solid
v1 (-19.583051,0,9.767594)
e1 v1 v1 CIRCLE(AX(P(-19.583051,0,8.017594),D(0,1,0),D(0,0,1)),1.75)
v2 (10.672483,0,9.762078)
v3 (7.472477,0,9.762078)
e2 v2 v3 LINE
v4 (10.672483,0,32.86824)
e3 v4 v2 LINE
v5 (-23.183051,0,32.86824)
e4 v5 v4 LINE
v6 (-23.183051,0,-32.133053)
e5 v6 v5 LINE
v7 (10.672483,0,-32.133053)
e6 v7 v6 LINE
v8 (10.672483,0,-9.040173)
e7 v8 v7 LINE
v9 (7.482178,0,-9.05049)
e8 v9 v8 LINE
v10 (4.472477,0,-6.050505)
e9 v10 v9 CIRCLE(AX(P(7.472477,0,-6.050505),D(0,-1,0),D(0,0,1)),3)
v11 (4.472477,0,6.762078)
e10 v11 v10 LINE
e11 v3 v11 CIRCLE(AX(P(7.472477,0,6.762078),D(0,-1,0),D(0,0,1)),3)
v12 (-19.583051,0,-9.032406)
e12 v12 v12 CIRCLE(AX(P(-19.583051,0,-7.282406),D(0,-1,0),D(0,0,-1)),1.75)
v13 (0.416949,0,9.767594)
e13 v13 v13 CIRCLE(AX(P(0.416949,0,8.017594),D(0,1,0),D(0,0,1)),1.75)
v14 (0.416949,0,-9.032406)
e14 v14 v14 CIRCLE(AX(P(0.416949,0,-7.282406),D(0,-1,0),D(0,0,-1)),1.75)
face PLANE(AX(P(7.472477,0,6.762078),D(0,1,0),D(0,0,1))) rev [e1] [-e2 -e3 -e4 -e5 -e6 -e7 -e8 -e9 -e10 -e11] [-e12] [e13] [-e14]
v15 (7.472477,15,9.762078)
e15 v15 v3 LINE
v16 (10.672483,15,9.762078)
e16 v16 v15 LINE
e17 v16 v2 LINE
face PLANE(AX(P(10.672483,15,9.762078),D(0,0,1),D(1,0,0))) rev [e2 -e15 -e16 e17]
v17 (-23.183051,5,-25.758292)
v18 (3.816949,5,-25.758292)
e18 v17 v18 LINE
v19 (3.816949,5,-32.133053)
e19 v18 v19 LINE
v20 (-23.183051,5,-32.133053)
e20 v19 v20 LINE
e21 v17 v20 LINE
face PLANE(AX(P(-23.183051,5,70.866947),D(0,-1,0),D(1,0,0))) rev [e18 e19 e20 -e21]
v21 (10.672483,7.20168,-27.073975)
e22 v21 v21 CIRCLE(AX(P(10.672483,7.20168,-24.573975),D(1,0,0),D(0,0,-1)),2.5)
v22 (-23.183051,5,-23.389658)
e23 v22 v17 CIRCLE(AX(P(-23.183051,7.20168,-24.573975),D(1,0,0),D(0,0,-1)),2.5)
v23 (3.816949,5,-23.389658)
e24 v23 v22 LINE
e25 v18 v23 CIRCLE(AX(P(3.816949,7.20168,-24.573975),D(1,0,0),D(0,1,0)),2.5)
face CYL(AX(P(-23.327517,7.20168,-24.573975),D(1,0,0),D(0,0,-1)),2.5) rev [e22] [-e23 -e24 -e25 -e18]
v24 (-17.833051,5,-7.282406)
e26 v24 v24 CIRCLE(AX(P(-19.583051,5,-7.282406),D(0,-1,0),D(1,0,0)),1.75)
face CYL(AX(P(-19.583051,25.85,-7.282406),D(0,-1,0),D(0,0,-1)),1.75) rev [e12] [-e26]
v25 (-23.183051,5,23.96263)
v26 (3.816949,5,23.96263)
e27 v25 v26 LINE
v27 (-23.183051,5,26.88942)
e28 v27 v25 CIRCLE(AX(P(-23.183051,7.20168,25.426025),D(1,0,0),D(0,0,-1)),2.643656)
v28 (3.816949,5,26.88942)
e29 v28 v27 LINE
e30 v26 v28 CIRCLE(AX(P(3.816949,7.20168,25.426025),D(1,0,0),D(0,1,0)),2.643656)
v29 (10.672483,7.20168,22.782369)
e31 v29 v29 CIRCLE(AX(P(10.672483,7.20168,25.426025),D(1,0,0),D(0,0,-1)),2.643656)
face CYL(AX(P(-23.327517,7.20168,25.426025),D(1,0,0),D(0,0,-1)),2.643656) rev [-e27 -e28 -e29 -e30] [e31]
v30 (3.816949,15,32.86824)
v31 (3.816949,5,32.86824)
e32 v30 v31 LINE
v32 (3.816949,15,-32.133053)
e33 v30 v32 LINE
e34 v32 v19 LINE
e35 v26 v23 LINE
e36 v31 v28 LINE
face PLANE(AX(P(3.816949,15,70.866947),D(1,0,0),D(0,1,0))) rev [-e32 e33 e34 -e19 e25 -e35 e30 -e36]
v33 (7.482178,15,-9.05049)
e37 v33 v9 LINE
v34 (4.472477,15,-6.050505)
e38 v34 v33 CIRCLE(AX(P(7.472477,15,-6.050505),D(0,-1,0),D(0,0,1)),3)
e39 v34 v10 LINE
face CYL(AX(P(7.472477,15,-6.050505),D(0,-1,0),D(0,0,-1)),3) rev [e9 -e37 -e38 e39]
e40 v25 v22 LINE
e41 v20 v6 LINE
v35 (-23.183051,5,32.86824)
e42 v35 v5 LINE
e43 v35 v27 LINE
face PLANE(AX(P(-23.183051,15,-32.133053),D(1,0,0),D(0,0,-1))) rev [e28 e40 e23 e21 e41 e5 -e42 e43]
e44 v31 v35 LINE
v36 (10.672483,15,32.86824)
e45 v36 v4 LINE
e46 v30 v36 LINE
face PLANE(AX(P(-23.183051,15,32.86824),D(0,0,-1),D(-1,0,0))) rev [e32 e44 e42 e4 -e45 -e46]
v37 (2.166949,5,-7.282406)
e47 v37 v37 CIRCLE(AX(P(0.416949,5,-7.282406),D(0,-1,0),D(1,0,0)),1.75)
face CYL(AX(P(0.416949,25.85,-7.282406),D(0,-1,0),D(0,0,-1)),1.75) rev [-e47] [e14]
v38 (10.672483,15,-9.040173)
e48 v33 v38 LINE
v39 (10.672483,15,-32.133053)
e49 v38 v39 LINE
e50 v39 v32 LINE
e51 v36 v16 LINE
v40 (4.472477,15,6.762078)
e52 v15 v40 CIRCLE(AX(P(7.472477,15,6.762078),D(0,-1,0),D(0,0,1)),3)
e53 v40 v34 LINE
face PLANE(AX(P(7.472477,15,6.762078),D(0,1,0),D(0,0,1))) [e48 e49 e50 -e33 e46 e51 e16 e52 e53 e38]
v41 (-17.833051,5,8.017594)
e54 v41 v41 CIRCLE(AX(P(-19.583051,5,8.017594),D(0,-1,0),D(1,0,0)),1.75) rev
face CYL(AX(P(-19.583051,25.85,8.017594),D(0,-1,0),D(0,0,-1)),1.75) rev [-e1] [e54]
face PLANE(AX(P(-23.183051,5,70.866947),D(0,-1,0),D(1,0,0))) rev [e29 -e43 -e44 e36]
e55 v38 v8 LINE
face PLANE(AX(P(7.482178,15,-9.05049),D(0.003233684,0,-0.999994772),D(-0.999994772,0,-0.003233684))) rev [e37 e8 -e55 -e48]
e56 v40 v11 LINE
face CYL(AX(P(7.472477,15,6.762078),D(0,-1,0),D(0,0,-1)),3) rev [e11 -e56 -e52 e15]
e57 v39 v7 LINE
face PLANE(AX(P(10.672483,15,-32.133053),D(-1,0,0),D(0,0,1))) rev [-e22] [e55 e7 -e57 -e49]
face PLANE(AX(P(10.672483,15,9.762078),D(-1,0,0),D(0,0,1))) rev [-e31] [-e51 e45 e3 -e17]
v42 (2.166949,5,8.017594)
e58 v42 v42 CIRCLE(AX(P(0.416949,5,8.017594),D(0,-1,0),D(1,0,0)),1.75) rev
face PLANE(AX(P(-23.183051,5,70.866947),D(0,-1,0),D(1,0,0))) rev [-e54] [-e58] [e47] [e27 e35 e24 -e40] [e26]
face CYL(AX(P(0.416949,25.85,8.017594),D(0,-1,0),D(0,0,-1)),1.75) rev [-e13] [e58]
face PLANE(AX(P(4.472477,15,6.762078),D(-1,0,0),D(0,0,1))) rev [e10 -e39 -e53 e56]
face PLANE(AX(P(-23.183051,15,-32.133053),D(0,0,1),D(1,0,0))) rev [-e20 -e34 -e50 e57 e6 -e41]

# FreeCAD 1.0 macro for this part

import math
import FreeCAD as App
import Part
import Sketcher
Q = App.Units.Quantity


def add_polygon(sketch, points):
    """Adds a closed chain of lines whose ends are joined by coincident constraints."""
    first, n = sketch.GeometryCount, len(points)
    for a, b in zip(points, points[1:] + points[:1]):
        sketch.addGeometry(Part.LineSegment(App.Vector(*a, 0), App.Vector(*b, 0)), False)
    for i in range(n):
        sketch.addConstraint(Sketcher.Constraint("Coincident", first + i, 2, first + (i + 1) % n, 1))

doc = App.newDocument("Part")
body = doc.addObject("PartDesign::Body", "Body")

sketch1 = doc.addObject("Sketcher::SketchObject", "Sketch")
body.addObject(sketch1)
sketch1.AttachmentSupport = (doc.XZ_Plane, [""])
sketch1.MapMode = "FlatFace"
sketch1.addGeometry([
    Part.LineSegment(App.Vector(10.7, 9.8, 0), App.Vector(7.5, 9.8, 0)),
    Part.ArcOfCircle(Part.Circle(App.Vector(7.5, 6.8, 0), App.Vector(0, 0, 1), 3), math.radians(90), math.radians(180)),
    Part.LineSegment(App.Vector(4.5, 6.8, 0), App.Vector(4.5, -6.1, 0)),
    Part.ArcOfCircle(Part.Circle(App.Vector(7.5, -6.1, 0), App.Vector(0, 0, 1), 3), math.radians(180), math.radians(270)),
    Part.LineSegment(App.Vector(7.5, -9.1, 0), App.Vector(10.7, -9, 0)),
    Part.LineSegment(App.Vector(10.7, -9, 0), App.Vector(10.7, -32.1, 0)),
    Part.LineSegment(App.Vector(10.7, -32.1, 0), App.Vector(-23.2, -32.1, 0)),
    Part.LineSegment(App.Vector(-23.2, -32.1, 0), App.Vector(-23.2, 32.9, 0)),
    Part.LineSegment(App.Vector(-23.2, 32.9, 0), App.Vector(10.7, 32.9, 0)),
    Part.LineSegment(App.Vector(10.7, 32.9, 0), App.Vector(10.7, 9.8, 0)),
], False)
sketch1.addConstraint([
    Sketcher.Constraint("Tangent", 0, 2, 1, 1),
    Sketcher.Constraint("Tangent", 1, 2, 2, 1),
    Sketcher.Constraint("Tangent", 2, 2, 3, 1),
    Sketcher.Constraint("Tangent", 3, 2, 4, 1),
    Sketcher.Constraint("Coincident", 4, 2, 5, 1),
    Sketcher.Constraint("Coincident", 5, 2, 6, 1),
    Sketcher.Constraint("Coincident", 6, 2, 7, 1),
    Sketcher.Constraint("Coincident", 7, 2, 8, 1),
    Sketcher.Constraint("Coincident", 8, 2, 9, 1),
    Sketcher.Constraint("Coincident", 9, 2, 0, 1),
    Sketcher.Constraint("Horizontal", 0),
    Sketcher.Constraint("Vertical", 2),
    Sketcher.Constraint("Vertical", 5),
    Sketcher.Constraint("Horizontal", 6),
    Sketcher.Constraint("Vertical", 7),
    Sketcher.Constraint("Horizontal", 8),
    Sketcher.Constraint("Vertical", 9),
    Sketcher.Constraint("Equal", 1, 3),
    Sketcher.Constraint("Vertical", 5, 2, 8, 2),
    Sketcher.Constraint("Radius", 1, Q("3 mm")),
    Sketcher.Constraint("DistanceY", 5, 2, 5, 1, Q("23.09288 mm")),
    Sketcher.Constraint("DistanceX", 3, 3, 3, 2, Q("0.009701 mm")),
    Sketcher.Constraint("Distance", 4, Q("3.190321 mm")),
    Sketcher.Constraint("DistanceX", 6, 2, 6, 1, Q("33.855533 mm")),
    Sketcher.Constraint("DistanceY", 2, 2, 2, 1, Q("12.812583 mm")),
    Sketcher.Constraint("DistanceY", 7, 1, 7, 2, Q("65.001293 mm")),
    Sketcher.Constraint("DistanceX", -1, 1, 3, 2, Q("7.482178 mm")),
    Sketcher.Constraint("DistanceY", 3, 2, -1, 1, Q("9.05049 mm")),
])
pad1 = doc.addObject("PartDesign::Pad", "Pad")
body.addObject(pad1)
pad1.Profile = sketch1
pad1.Length = 15
pad1.Reversed = True

sketch2 = doc.addObject("Sketcher::SketchObject", "Sketch001")
body.addObject(sketch2)
sketch2.AttachmentSupport = (doc.XY_Plane, [""])
sketch2.MapMode = "FlatFace"
sketch2.AttachmentOffset = App.Placement(App.Vector(0, 0, -32.133053), App.Rotation())
add_polygon(sketch2, [(4, 15), (4, 5), (-23, 5), (-23, 15)])
sketch2.addConstraint([
    Sketcher.Constraint("Vertical", 0),
    Sketcher.Constraint("Horizontal", 1),
    Sketcher.Constraint("Vertical", 2),
    Sketcher.Constraint("Horizontal", 3),
    Sketcher.Constraint("DistanceX", 1, 2, 1, 1, Q("27 mm")),
    Sketcher.Constraint("DistanceY", 0, 2, 0, 1, Q("10 mm")),
    Sketcher.Constraint("DistanceY", -1, 1, 0, 2, Q("5 mm")),
    Sketcher.Constraint("DistanceX", -1, 1, 0, 2, Q("3.816949 mm")),
])
pocket1 = doc.addObject("PartDesign::Pocket", "Pocket")
body.addObject(pocket1)
pocket1.Profile = sketch2
pocket1.Length = 103
pocket1.Reversed = True

sketch3 = doc.addObject("Sketcher::SketchObject", "Sketch002")
body.addObject(sketch3)
sketch3.AttachmentSupport = (doc.XZ_Plane, [""])
sketch3.MapMode = "FlatFace"
sketch3.addGeometry([
    Part.Circle(App.Vector(0.4, -7.3, 0), App.Vector(0, 0, 1), 1.8),
    Part.Circle(App.Vector(-19.6, -7.3, 0), App.Vector(0, 0, 1), 1.8),
    Part.Circle(App.Vector(-19.6, 8, 0), App.Vector(0, 0, 1), 1.8),
    Part.Circle(App.Vector(0.4, 8, 0), App.Vector(0, 0, 1), 1.8),
], False)
sketch3.addConstraint([
    Sketcher.Constraint("Equal", 0, 1),
    Sketcher.Constraint("Equal", 1, 2),
    Sketcher.Constraint("Equal", 2, 3),
    Sketcher.Constraint("Horizontal", 0, 3, 1, 3),
    Sketcher.Constraint("Horizontal", 2, 3, 3, 3),
    Sketcher.Constraint("Vertical", 1, 3, 2, 3),
    Sketcher.Constraint("Vertical", 0, 3, 3, 3),
    Sketcher.Constraint("Diameter", 0, Q("3.5 mm")),
    Sketcher.Constraint("DistanceX", 1, 3, 0, 3, Q("20 mm")),
    Sketcher.Constraint("DistanceY", 1, 3, 2, 3, Q("15.3 mm")),
    Sketcher.Constraint("DistanceX", -1, 1, 0, 3, Q("0.416949 mm")),
    Sketcher.Constraint("DistanceY", 0, 3, -1, 1, Q("7.282406 mm")),
])
pocket2 = doc.addObject("PartDesign::Pocket", "Pocket001")
body.addObject(pocket2)
pocket2.Profile = sketch3
pocket2.Length = 25.85

sketch4 = doc.addObject("Sketcher::SketchObject", "Sketch003")
body.addObject(sketch4)
sketch4.AttachmentSupport = (doc.YZ_Plane, [""])
sketch4.MapMode = "FlatFace"
sketch4.AttachmentOffset = App.Placement(App.Vector(0, 0, 10.672483), App.Rotation())
sketch4.addGeometry([
    Part.Circle(App.Vector(7.2, -24.6, 0), App.Vector(0, 0, 1), 2.5),
    Part.Circle(App.Vector(7.2, 25.4, 0), App.Vector(0, 0, 1), 2.6),
], False)
sketch4.addConstraint([
    Sketcher.Constraint("Vertical", 0, 3, 1, 3),
    Sketcher.Constraint("Diameter", 0, Q("5 mm")),
    Sketcher.Constraint("DistanceY", 0, 3, 1, 3, Q("50 mm")),
    Sketcher.Constraint("Diameter", 1, Q("5.287312 mm")),
    Sketcher.Constraint("DistanceX", -1, 1, 0, 3, Q("7.20168 mm")),
    Sketcher.Constraint("DistanceY", 0, 3, -1, 1, Q("24.573975 mm")),
])
pocket3 = doc.addObject("PartDesign::Pocket", "Pocket002")
body.addObject(pocket3)
pocket3.Profile = sketch4
pocket3.Length = 34

doc.recompute()
